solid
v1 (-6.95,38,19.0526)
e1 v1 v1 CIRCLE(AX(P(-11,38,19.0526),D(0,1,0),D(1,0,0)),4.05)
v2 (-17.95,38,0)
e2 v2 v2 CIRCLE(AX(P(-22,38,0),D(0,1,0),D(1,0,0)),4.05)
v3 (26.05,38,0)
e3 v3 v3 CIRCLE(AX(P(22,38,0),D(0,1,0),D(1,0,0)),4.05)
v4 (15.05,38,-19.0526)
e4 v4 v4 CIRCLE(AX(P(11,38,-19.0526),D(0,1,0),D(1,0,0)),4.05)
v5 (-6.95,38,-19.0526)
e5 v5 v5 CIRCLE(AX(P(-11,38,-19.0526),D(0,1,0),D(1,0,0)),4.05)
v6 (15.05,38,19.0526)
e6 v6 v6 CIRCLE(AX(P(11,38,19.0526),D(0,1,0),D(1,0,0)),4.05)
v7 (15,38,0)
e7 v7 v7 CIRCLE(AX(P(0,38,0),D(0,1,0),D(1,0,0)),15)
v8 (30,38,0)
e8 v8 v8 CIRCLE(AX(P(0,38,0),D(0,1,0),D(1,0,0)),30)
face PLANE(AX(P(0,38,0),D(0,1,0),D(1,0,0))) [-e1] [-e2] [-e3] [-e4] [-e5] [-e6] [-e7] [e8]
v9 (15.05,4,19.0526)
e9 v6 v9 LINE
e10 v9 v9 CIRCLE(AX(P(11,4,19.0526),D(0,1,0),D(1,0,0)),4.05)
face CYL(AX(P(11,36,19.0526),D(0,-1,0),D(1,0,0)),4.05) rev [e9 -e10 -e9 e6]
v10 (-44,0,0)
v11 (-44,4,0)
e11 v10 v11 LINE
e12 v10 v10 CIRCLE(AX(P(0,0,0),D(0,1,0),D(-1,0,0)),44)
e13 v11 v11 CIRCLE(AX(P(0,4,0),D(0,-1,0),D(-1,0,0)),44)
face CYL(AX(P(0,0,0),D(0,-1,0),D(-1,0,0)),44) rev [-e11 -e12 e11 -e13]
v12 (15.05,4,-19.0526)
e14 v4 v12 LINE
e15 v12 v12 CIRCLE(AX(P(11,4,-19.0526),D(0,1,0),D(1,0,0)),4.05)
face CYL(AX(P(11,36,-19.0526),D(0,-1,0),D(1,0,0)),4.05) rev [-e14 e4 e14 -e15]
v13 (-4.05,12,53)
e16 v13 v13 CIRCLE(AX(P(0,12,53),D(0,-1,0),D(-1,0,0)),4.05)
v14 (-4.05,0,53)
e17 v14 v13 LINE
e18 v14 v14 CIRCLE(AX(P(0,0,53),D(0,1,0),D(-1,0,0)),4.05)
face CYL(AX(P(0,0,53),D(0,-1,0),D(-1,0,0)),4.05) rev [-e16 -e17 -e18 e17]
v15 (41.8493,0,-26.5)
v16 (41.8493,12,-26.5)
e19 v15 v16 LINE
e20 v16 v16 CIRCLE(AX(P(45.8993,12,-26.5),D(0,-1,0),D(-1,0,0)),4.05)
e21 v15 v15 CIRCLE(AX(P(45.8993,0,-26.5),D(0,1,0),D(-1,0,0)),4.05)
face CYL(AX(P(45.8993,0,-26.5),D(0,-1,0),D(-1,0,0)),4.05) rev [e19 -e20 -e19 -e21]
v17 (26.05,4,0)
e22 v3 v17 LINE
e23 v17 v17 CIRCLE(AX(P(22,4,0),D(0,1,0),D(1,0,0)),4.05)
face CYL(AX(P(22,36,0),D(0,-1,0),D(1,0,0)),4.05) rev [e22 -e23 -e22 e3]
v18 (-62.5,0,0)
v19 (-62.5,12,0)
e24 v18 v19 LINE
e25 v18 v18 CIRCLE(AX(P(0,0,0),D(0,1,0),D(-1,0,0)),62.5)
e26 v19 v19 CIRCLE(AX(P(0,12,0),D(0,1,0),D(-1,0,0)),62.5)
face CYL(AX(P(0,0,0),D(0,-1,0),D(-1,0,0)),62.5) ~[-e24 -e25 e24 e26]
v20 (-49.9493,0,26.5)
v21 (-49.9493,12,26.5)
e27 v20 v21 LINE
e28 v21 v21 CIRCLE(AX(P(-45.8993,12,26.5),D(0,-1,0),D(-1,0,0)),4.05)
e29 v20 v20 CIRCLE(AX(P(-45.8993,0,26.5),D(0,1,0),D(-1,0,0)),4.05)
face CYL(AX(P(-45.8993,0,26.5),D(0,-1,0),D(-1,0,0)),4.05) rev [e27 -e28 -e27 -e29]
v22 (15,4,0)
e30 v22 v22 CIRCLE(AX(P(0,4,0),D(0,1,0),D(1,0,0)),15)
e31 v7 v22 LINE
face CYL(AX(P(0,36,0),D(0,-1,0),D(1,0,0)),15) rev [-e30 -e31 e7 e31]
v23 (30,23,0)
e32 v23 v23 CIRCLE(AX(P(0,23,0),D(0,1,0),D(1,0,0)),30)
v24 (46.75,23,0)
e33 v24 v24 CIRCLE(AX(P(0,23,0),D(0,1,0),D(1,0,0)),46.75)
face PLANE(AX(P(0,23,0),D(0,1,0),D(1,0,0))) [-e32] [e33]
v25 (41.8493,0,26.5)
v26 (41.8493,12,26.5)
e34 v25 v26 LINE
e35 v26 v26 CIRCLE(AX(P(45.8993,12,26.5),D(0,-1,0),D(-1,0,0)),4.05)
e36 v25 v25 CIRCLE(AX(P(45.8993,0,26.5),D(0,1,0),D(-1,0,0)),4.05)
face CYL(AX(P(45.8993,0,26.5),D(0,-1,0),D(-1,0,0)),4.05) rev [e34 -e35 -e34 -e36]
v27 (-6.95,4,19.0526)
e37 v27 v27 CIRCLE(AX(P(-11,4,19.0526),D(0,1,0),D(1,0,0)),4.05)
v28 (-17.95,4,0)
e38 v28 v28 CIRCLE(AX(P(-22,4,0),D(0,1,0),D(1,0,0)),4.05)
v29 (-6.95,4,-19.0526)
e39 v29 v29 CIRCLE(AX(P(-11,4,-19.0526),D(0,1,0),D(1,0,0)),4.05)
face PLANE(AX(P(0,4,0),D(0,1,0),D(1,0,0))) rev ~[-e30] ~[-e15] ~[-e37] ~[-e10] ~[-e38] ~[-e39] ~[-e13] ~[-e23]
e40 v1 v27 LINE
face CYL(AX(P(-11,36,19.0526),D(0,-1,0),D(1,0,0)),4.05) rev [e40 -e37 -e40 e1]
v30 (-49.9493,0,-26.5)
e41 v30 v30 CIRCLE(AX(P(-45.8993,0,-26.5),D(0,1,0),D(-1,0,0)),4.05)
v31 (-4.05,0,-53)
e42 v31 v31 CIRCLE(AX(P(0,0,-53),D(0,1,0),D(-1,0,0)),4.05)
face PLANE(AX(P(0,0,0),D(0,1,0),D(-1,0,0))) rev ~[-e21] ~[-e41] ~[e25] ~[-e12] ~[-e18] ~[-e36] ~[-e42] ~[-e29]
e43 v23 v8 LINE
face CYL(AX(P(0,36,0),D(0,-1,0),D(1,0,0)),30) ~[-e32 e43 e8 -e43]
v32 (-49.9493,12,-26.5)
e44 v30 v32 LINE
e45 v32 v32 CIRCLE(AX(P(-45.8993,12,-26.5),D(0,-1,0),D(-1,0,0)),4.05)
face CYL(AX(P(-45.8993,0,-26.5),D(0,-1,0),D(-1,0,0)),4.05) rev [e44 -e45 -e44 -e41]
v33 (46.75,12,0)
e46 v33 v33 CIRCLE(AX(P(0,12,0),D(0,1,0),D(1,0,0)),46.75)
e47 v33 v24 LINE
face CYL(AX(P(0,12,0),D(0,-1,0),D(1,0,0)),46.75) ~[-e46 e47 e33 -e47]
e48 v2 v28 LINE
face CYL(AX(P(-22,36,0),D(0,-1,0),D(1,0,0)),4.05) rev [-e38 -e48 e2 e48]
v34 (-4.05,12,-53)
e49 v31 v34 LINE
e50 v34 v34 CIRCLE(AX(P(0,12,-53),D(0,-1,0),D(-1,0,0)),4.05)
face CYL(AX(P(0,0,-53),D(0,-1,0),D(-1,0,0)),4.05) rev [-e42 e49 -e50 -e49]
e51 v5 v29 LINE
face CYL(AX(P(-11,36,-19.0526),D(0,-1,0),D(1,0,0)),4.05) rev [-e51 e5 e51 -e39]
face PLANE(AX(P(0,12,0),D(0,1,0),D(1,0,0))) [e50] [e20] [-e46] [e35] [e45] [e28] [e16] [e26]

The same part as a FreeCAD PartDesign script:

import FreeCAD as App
import Part
import Sketcher
from FreeCAD import Vector
Q = App.Units.Quantity

doc = App.newDocument("Part")
params = doc.addObject("Spreadsheet::Sheet", "Params")
for row, (alias, value) in enumerate([
    ("sketch1_diameter", "125 mm"),
    ("sketch1_diameter2", "8.1 mm"),
    ("sketch1_diameter3", "88 mm"),
    ("pad1_length", "12 mm"),
    ("sketch2_diameter", "30 mm"),
    ("sketch2_diameter2", "8.1 mm"),
    ("sketch2_diameter3", "88 mm"),
    ("pad2_length", "8 mm"),
    ("sketch3_diameter", "60 mm"),
    ("sketch3_diameter2", "30 mm"),
    ("sketch3_diameter3", "8.1 mm"),
    ("pad3_length", "24 mm"),
    ("sketch4_diameter", "93.5 mm"),
    ("sketch4_diameter2", "60 mm"),
    ("pad4_length", "11 mm"),
    ("sketch5_diameter", "60 mm"),
    ("sketch5_diameter2", "30 mm"),
    ("sketch5_diameter3", "8.1 mm"),
    ("pad5_length", "2 mm"),
], start=1):
    params.set(f"A{row}", alias)
    params.set(f"B{row}", "=" + value)
    params.setAlias(f"B{row}", alias)

body = doc.addObject("PartDesign::Body", "Body")

# Sketch on XZ plane
sketch1 = doc.addObject("Sketcher::SketchObject", "Sketch")
body.addObject(sketch1)
sketch1.AttachmentSupport = (doc.XZ_Plane, [""])
sketch1.MapMode = "FlatFace"
sketch1.addGeometry([
    Part.Circle(Vector(0, 0, 0), Vector(0, 0, 1), 62.5),  # 0
    Part.Circle(Vector(-45.9, 26.5, 0), Vector(0, 0, 1), 4),  # 1
    Part.Circle(Vector(0, 53, 0), Vector(0, 0, 1), 4),  # 2
    Part.Circle(Vector(45.9, 26.5, 0), Vector(0, 0, 1), 4),  # 3
    Part.Circle(Vector(45.9, -26.5, 0), Vector(0, 0, 1), 4),  # 4
    Part.Circle(Vector(0, -53, 0), Vector(0, 0, 1), 4),  # 5
    Part.Circle(Vector(-45.9, -26.5, 0), Vector(0, 0, 1), 4),  # 6
    Part.Circle(Vector(0, 0, 0), Vector(0, 0, 1), 44),  # 7
], False)
sketch1.addConstraint([
    Sketcher.Constraint("Coincident", 0, 3, -1, 1),
    Sketcher.Constraint("Coincident", 7, 3, -1, 1),
    Sketcher.Constraint("Equal", 1, 2),
    Sketcher.Constraint("Equal", 2, 3),
    Sketcher.Constraint("Equal", 3, 4),
    Sketcher.Constraint("Equal", 4, 5),
    Sketcher.Constraint("Equal", 5, 6),
    Sketcher.Constraint("Symmetric", 1, 3, 4, 3, -1, 1),
    Sketcher.Constraint("Symmetric", 2, 3, 5, 3, -1, 1),
    Sketcher.Constraint("Symmetric", 3, 3, 6, 3, -1, 1),
    Sketcher.Constraint("Symmetric", 1, 3, 3, 3, -2),
    Sketcher.Constraint("PointOnObject", 2, 3, -2),
    Sketcher.Constraint("Diameter", 0, Q("125 mm")),
    Sketcher.Constraint("Diameter", 1, Q("8.1 mm")),
    Sketcher.Constraint("Diameter", 7, Q("88 mm")),
    Sketcher.Constraint("DistanceY", 5, 3, 2, 3, Q("106 mm")),
    Sketcher.Constraint("DistanceY", 4, 3, 3, 3, Q("53 mm")),
    Sketcher.Constraint("DistanceX", 1, 3, -1, 1, Q("45.8993 mm")),
])
sketch1.setExpression("Constraints[12]", "Params.sketch1_diameter")
sketch1.setExpression("Constraints[13]", "Params.sketch1_diameter2")
sketch1.setExpression("Constraints[14]", "Params.sketch1_diameter3")
pad1 = doc.addObject("PartDesign::Pad", "Pad")
body.addObject(pad1)
pad1.Profile = sketch1
pad1.setExpression("Length", "Params.pad1_length")
pad1.Reversed = True

# Sketch on XZ plane
sketch2 = doc.addObject("Sketcher::SketchObject", "Sketch001")
body.addObject(sketch2)
sketch2.AttachmentSupport = (doc.XZ_Plane, [""])
sketch2.MapMode = "FlatFace"
sketch2.AttachmentOffset = App.Placement(Vector(0, 0, -12), App.Rotation())
sketch2.addGeometry([
    Part.Circle(Vector(0, 0, 0), Vector(0, 0, 1), 44),  # 0
    Part.Circle(Vector(-11, 19.1, 0), Vector(0, 0, 1), 4),  # 1
    Part.Circle(Vector(11, 19.1, 0), Vector(0, 0, 1), 4),  # 2
    Part.Circle(Vector(-22, 0, 0), Vector(0, 0, 1), 4),  # 3
    Part.Circle(Vector(-11, -19.1, 0), Vector(0, 0, 1), 4),  # 4
    Part.Circle(Vector(0, 0, 0), Vector(0, 0, 1), 15),  # 5
    Part.Circle(Vector(11, -19.1, 0), Vector(0, 0, 1), 4),  # 6
    Part.Circle(Vector(22, 0, 0), Vector(0, 0, 1), 4),  # 7
], False)
sketch2.addConstraint([
    Sketcher.Constraint("Coincident", 0, 3, -1, 1),
    Sketcher.Constraint("Coincident", 5, 3, -1, 1),
    Sketcher.Constraint("Equal", 1, 2),
    Sketcher.Constraint("Equal", 2, 3),
    Sketcher.Constraint("Equal", 3, 4),
    Sketcher.Constraint("Equal", 4, 6),
    Sketcher.Constraint("Equal", 6, 7),
    Sketcher.Constraint("Symmetric", 2, 3, 4, 3, -1, 1),
    Sketcher.Constraint("Symmetric", 1, 3, 6, 3, -1, 1),
    Sketcher.Constraint("Symmetric", 3, 3, 7, 3, -1, 1),
    Sketcher.Constraint("Symmetric", 1, 3, 2, 3, -2),
    Sketcher.Constraint("PointOnObject", 3, 3, -1),
    Sketcher.Constraint("Diameter", 5, Q("30 mm")),
    Sketcher.Constraint("Diameter", 1, Q("8.1 mm")),
    Sketcher.Constraint("Diameter", 0, Q("88 mm")),
    Sketcher.Constraint("DistanceX", 3, 3, -1, 1, Q("22 mm")),
    Sketcher.Constraint("DistanceX", 1, 3, 2, 3, Q("22 mm")),
    Sketcher.Constraint("DistanceY", -1, 1, 1, 3, Q("19.0526 mm")),
])
sketch2.setExpression("Constraints[12]", "Params.sketch2_diameter")
sketch2.setExpression("Constraints[13]", "Params.sketch2_diameter2")
sketch2.setExpression("Constraints[14]", "Params.sketch2_diameter3")
pad2 = doc.addObject("PartDesign::Pad", "Pad001")
body.addObject(pad2)
pad2.Profile = sketch2
pad2.setExpression("Length", "Params.pad2_length")

# Sketch on XZ plane
sketch3 = doc.addObject("Sketcher::SketchObject", "Sketch002")
body.addObject(sketch3)
sketch3.AttachmentSupport = (doc.XZ_Plane, [""])
sketch3.MapMode = "FlatFace"
sketch3.AttachmentOffset = App.Placement(Vector(0, 0, -12), App.Rotation())
sketch3.addGeometry([
    Part.Circle(Vector(0, 0, 0), Vector(0, 0, 1), 30),  # 0
    Part.Circle(Vector(-11, 19.1, 0), Vector(0, 0, 1), 4),  # 1
    Part.Circle(Vector(11, 19.1, 0), Vector(0, 0, 1), 4),  # 2
    Part.Circle(Vector(-22, 0, 0), Vector(0, 0, 1), 4),  # 3
    Part.Circle(Vector(-11, -19.1, 0), Vector(0, 0, 1), 4),  # 4
    Part.Circle(Vector(0, 0, 0), Vector(0, 0, 1), 15),  # 5
    Part.Circle(Vector(22, 0, 0), Vector(0, 0, 1), 4),  # 6
    Part.Circle(Vector(11, -19.1, 0), Vector(0, 0, 1), 4),  # 7
], False)
sketch3.addConstraint([
    Sketcher.Constraint("Coincident", 0, 3, -1, 1),
    Sketcher.Constraint("Coincident", 5, 3, -1, 1),
    Sketcher.Constraint("Equal", 1, 2),
    Sketcher.Constraint("Equal", 2, 3),
    Sketcher.Constraint("Equal", 3, 4),
    Sketcher.Constraint("Equal", 4, 6),
    Sketcher.Constraint("Equal", 6, 7),
    Sketcher.Constraint("Symmetric", 2, 3, 4, 3, -1, 1),
    Sketcher.Constraint("Symmetric", 3, 3, 6, 3, -1, 1),
    Sketcher.Constraint("Symmetric", 1, 3, 7, 3, -1, 1),
    Sketcher.Constraint("Symmetric", 1, 3, 2, 3, -2),
    Sketcher.Constraint("PointOnObject", 3, 3, -1),
    Sketcher.Constraint("Diameter", 0, Q("60 mm")),
    Sketcher.Constraint("Diameter", 5, Q("30 mm")),
    Sketcher.Constraint("Diameter", 1, Q("8.1 mm")),
    Sketcher.Constraint("DistanceX", 1, 3, -1, 1, Q("11 mm")),
    Sketcher.Constraint("DistanceX", 3, 3, -1, 1, Q("22 mm")),
    Sketcher.Constraint("DistanceY", -1, 1, 1, 3, Q("19.0526 mm")),
])
sketch3.setExpression("Constraints[12]", "Params.sketch3_diameter")
sketch3.setExpression("Constraints[13]", "Params.sketch3_diameter2")
sketch3.setExpression("Constraints[14]", "Params.sketch3_diameter3")
pad3 = doc.addObject("PartDesign::Pad", "Pad002")
body.addObject(pad3)
pad3.Profile = sketch3
pad3.setExpression("Length", "Params.pad3_length")
pad3.Reversed = True

# Sketch on XZ plane
sketch4 = doc.addObject("Sketcher::SketchObject", "Sketch003")
body.addObject(sketch4)
sketch4.AttachmentSupport = (doc.XZ_Plane, [""])
sketch4.MapMode = "FlatFace"
sketch4.AttachmentOffset = App.Placement(Vector(0, 0, -12), App.Rotation())
sketch4.addGeometry([
    Part.Circle(Vector(0, 0, 0), Vector(0, 0, 1), 47),
    Part.Circle(Vector(0, 0, 0), Vector(0, 0, 1), 30),
], False)
sketch4.addConstraint([
    Sketcher.Constraint("Coincident", 0, 3, -1, 1),
    Sketcher.Constraint("Coincident", 1, 3, -1, 1),
    Sketcher.Constraint("Diameter", 0, Q("93.5 mm")),
    Sketcher.Constraint("Diameter", 1, Q("60 mm")),
])
sketch4.setExpression("Constraints[2]", "Params.sketch4_diameter")
sketch4.setExpression("Constraints[3]", "Params.sketch4_diameter2")
pad4 = doc.addObject("PartDesign::Pad", "Pad003")
body.addObject(pad4)
pad4.Profile = sketch4
pad4.setExpression("Length", "Params.pad4_length")
pad4.Reversed = True

# Sketch on XZ plane
sketch5 = doc.addObject("Sketcher::SketchObject", "Sketch004")
body.addObject(sketch5)
sketch5.AttachmentSupport = (doc.XZ_Plane, [""])
sketch5.MapMode = "FlatFace"
sketch5.AttachmentOffset = App.Placement(Vector(0, 0, -36), App.Rotation())
sketch5.addGeometry([
    Part.Circle(Vector(0, 0, 0), Vector(0, 0, 1), 30),  # 0
    Part.Circle(Vector(-11, 19.1, 0), Vector(0, 0, 1), 4),  # 1
    Part.Circle(Vector(11, 19.1, 0), Vector(0, 0, 1), 4),  # 2
    Part.Circle(Vector(-22, 0, 0), Vector(0, 0, 1), 4),  # 3
    Part.Circle(Vector(-11, -19.1, 0), Vector(0, 0, 1), 4),  # 4
    Part.Circle(Vector(0, 0, 0), Vector(0, 0, 1), 15),  # 5
    Part.Circle(Vector(22, 0, 0), Vector(0, 0, 1), 4),  # 6
    Part.Circle(Vector(11, -19.1, 0), Vector(0, 0, 1), 4),  # 7
], False)
sketch5.addConstraint([
    Sketcher.Constraint("Coincident", 0, 3, -1, 1),
    Sketcher.Constraint("Coincident", 5, 3, -1, 1),
    Sketcher.Constraint("Equal", 1, 2),
    Sketcher.Constraint("Equal", 2, 3),
    Sketcher.Constraint("Equal", 3, 4),
    Sketcher.Constraint("Equal", 4, 6),
    Sketcher.Constraint("Equal", 6, 7),
    Sketcher.Constraint("Symmetric", 2, 3, 4, 3, -1, 1),
    Sketcher.Constraint("Symmetric", 3, 3, 6, 3, -1, 1),
    Sketcher.Constraint("Symmetric", 1, 3, 7, 3, -1, 1),
    Sketcher.Constraint("Symmetric", 1, 3, 2, 3, -2),
    Sketcher.Constraint("PointOnObject", 3, 3, -1),
    Sketcher.Constraint("Diameter", 0, Q("60 mm")),
    Sketcher.Constraint("Diameter", 5, Q("30 mm")),
    Sketcher.Constraint("Diameter", 1, Q("8.1 mm")),
    Sketcher.Constraint("DistanceX", 1, 3, -1, 1, Q("11 mm")),
    Sketcher.Constraint("DistanceX", 3, 3, -1, 1, Q("22 mm")),
    Sketcher.Constraint("DistanceY", -1, 1, 1, 3, Q("19.0526 mm")),
])
sketch5.setExpression("Constraints[12]", "Params.sketch5_diameter")
sketch5.setExpression("Constraints[13]", "Params.sketch5_diameter2")
sketch5.setExpression("Constraints[14]", "Params.sketch5_diameter3")
pad5 = doc.addObject("PartDesign::Pad", "Pad004")
body.addObject(pad5)
pad5.Profile = sketch5
pad5.setExpression("Length", "Params.pad5_length")
pad5.Reversed = True

doc.recompute()
